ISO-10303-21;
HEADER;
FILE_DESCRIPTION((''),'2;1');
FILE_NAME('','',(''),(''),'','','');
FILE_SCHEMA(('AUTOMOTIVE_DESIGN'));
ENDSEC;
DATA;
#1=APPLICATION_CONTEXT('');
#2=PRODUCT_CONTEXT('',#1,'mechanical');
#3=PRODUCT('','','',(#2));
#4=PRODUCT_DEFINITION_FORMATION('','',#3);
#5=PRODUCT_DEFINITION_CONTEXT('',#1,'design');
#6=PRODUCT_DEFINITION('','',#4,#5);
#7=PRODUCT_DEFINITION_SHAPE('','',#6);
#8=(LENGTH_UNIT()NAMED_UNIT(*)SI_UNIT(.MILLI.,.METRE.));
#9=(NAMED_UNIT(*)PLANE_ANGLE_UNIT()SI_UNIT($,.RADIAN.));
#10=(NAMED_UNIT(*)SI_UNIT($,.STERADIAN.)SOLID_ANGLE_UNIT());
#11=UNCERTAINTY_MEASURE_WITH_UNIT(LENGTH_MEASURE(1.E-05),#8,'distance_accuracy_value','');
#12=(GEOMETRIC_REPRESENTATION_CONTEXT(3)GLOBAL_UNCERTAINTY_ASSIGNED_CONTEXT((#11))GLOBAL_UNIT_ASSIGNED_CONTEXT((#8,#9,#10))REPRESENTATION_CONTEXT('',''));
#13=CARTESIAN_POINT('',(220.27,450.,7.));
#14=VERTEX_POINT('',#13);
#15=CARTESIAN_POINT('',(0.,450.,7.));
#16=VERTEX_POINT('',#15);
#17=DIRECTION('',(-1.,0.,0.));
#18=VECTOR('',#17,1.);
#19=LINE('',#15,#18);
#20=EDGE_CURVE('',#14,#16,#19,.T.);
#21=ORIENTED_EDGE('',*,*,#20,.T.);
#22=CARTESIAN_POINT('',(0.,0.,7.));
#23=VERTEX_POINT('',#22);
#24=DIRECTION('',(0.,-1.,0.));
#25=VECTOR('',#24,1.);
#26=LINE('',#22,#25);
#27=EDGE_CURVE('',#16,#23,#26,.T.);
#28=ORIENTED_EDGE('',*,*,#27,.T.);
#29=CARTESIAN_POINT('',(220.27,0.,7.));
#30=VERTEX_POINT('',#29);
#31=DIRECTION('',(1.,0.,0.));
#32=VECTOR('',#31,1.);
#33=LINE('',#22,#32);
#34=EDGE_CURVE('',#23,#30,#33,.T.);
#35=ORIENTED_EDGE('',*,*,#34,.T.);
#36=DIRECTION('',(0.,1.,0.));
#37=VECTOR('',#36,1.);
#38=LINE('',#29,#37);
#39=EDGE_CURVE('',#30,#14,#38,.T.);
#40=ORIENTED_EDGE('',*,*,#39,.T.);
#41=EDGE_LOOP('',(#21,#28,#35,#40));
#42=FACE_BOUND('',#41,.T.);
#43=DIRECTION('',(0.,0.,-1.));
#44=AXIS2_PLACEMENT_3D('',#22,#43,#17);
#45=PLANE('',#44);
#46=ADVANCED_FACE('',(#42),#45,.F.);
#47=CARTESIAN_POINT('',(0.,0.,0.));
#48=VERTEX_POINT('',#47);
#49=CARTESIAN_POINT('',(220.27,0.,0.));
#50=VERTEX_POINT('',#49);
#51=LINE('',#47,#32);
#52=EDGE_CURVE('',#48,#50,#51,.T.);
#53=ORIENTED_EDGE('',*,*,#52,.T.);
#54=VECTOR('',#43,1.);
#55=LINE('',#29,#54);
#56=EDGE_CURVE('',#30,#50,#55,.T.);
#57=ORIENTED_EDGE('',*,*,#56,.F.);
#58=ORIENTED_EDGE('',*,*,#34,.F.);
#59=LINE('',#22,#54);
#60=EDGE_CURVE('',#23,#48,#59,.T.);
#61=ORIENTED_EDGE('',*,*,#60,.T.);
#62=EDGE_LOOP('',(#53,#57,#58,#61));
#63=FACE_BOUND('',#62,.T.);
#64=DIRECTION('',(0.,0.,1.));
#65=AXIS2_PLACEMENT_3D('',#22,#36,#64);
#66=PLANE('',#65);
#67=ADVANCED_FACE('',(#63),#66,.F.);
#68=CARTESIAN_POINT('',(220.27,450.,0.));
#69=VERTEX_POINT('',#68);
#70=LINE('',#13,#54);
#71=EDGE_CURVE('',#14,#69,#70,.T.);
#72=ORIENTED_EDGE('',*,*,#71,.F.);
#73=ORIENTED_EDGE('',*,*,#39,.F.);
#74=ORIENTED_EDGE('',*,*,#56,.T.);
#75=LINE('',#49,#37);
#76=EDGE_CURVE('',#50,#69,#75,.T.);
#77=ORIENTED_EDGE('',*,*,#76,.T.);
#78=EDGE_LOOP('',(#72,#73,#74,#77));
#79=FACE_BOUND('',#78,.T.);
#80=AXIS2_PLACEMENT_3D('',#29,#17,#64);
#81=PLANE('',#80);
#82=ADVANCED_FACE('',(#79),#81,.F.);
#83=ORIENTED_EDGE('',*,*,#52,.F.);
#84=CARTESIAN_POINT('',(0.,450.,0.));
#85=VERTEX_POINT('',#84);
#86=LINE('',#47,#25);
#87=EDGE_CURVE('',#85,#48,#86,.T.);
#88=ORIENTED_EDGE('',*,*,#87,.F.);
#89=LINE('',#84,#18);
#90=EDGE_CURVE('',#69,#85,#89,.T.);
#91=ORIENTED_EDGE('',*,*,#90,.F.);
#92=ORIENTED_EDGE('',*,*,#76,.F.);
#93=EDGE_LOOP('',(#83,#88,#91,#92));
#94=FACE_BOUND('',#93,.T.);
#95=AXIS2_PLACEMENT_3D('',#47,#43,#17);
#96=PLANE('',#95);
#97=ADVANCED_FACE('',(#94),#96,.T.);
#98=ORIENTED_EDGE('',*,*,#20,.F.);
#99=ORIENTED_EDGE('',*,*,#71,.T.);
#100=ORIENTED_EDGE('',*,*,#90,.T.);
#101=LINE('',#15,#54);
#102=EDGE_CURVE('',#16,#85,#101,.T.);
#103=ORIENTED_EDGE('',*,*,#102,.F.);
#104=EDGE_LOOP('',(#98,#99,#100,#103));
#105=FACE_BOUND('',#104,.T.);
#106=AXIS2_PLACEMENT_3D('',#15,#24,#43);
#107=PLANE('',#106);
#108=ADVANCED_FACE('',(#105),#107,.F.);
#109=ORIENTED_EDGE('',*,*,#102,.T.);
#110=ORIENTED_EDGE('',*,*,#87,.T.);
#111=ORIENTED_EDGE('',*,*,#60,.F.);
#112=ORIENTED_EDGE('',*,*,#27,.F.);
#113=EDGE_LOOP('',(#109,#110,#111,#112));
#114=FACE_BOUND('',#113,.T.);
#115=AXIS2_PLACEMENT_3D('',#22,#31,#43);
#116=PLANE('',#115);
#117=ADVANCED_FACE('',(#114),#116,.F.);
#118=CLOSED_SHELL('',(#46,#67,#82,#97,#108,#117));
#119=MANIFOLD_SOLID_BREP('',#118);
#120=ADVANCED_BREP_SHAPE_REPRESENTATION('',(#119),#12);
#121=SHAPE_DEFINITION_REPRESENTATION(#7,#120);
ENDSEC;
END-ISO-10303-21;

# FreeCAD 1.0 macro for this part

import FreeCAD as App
import Part
import Sketcher

V = App.Vector
Q = App.Units.Quantity


def add_polygon(sketch, points):
    """Adds a closed chain of lines whose ends are joined by coincident constraints."""
    first, n = sketch.GeometryCount, len(points)
    for a, b in zip(points, points[1:] + points[:1]):
        sketch.addGeometry(Part.LineSegment(App.Vector(*a, 0), App.Vector(*b, 0)), False)
    for i in range(n):
        sketch.addConstraint(Sketcher.Constraint("Coincident", first + i, 2, first + (i + 1) % n, 1))

doc = App.newDocument("Part")
body = doc.addObject("PartDesign::Body", "Body")

# Sketch on XY plane
sketch1 = body.newObject("Sketcher::SketchObject", "Sketch")
sketch1.AttachmentSupport = (doc.getObject("XY_Plane"), [""])
sketch1.MapMode = "FlatFace"
add_polygon(sketch1, [(0, 450), (0, 0), (220, 0), (220, 450)])  # lines 0-3
sketch1.addConstraint([
    Sketcher.Constraint("Vertical", 0),
    Sketcher.Constraint("Horizontal", 1),
    Sketcher.Constraint("Vertical", 2),
    Sketcher.Constraint("Horizontal", 3),
    Sketcher.Constraint("Coincident", 0, 2, -1, 1),
    Sketcher.Constraint("DistanceY", 0, 2, 0, 1, Q("450 mm")),
    Sketcher.Constraint("DistanceX", 1, 1, 1, 2, Q("220.27 mm")),
])
pad1 = body.newObject("PartDesign::Pad", "Pad")
pad1.Profile = sketch1
pad1.Length = 7

doc.recompute()
